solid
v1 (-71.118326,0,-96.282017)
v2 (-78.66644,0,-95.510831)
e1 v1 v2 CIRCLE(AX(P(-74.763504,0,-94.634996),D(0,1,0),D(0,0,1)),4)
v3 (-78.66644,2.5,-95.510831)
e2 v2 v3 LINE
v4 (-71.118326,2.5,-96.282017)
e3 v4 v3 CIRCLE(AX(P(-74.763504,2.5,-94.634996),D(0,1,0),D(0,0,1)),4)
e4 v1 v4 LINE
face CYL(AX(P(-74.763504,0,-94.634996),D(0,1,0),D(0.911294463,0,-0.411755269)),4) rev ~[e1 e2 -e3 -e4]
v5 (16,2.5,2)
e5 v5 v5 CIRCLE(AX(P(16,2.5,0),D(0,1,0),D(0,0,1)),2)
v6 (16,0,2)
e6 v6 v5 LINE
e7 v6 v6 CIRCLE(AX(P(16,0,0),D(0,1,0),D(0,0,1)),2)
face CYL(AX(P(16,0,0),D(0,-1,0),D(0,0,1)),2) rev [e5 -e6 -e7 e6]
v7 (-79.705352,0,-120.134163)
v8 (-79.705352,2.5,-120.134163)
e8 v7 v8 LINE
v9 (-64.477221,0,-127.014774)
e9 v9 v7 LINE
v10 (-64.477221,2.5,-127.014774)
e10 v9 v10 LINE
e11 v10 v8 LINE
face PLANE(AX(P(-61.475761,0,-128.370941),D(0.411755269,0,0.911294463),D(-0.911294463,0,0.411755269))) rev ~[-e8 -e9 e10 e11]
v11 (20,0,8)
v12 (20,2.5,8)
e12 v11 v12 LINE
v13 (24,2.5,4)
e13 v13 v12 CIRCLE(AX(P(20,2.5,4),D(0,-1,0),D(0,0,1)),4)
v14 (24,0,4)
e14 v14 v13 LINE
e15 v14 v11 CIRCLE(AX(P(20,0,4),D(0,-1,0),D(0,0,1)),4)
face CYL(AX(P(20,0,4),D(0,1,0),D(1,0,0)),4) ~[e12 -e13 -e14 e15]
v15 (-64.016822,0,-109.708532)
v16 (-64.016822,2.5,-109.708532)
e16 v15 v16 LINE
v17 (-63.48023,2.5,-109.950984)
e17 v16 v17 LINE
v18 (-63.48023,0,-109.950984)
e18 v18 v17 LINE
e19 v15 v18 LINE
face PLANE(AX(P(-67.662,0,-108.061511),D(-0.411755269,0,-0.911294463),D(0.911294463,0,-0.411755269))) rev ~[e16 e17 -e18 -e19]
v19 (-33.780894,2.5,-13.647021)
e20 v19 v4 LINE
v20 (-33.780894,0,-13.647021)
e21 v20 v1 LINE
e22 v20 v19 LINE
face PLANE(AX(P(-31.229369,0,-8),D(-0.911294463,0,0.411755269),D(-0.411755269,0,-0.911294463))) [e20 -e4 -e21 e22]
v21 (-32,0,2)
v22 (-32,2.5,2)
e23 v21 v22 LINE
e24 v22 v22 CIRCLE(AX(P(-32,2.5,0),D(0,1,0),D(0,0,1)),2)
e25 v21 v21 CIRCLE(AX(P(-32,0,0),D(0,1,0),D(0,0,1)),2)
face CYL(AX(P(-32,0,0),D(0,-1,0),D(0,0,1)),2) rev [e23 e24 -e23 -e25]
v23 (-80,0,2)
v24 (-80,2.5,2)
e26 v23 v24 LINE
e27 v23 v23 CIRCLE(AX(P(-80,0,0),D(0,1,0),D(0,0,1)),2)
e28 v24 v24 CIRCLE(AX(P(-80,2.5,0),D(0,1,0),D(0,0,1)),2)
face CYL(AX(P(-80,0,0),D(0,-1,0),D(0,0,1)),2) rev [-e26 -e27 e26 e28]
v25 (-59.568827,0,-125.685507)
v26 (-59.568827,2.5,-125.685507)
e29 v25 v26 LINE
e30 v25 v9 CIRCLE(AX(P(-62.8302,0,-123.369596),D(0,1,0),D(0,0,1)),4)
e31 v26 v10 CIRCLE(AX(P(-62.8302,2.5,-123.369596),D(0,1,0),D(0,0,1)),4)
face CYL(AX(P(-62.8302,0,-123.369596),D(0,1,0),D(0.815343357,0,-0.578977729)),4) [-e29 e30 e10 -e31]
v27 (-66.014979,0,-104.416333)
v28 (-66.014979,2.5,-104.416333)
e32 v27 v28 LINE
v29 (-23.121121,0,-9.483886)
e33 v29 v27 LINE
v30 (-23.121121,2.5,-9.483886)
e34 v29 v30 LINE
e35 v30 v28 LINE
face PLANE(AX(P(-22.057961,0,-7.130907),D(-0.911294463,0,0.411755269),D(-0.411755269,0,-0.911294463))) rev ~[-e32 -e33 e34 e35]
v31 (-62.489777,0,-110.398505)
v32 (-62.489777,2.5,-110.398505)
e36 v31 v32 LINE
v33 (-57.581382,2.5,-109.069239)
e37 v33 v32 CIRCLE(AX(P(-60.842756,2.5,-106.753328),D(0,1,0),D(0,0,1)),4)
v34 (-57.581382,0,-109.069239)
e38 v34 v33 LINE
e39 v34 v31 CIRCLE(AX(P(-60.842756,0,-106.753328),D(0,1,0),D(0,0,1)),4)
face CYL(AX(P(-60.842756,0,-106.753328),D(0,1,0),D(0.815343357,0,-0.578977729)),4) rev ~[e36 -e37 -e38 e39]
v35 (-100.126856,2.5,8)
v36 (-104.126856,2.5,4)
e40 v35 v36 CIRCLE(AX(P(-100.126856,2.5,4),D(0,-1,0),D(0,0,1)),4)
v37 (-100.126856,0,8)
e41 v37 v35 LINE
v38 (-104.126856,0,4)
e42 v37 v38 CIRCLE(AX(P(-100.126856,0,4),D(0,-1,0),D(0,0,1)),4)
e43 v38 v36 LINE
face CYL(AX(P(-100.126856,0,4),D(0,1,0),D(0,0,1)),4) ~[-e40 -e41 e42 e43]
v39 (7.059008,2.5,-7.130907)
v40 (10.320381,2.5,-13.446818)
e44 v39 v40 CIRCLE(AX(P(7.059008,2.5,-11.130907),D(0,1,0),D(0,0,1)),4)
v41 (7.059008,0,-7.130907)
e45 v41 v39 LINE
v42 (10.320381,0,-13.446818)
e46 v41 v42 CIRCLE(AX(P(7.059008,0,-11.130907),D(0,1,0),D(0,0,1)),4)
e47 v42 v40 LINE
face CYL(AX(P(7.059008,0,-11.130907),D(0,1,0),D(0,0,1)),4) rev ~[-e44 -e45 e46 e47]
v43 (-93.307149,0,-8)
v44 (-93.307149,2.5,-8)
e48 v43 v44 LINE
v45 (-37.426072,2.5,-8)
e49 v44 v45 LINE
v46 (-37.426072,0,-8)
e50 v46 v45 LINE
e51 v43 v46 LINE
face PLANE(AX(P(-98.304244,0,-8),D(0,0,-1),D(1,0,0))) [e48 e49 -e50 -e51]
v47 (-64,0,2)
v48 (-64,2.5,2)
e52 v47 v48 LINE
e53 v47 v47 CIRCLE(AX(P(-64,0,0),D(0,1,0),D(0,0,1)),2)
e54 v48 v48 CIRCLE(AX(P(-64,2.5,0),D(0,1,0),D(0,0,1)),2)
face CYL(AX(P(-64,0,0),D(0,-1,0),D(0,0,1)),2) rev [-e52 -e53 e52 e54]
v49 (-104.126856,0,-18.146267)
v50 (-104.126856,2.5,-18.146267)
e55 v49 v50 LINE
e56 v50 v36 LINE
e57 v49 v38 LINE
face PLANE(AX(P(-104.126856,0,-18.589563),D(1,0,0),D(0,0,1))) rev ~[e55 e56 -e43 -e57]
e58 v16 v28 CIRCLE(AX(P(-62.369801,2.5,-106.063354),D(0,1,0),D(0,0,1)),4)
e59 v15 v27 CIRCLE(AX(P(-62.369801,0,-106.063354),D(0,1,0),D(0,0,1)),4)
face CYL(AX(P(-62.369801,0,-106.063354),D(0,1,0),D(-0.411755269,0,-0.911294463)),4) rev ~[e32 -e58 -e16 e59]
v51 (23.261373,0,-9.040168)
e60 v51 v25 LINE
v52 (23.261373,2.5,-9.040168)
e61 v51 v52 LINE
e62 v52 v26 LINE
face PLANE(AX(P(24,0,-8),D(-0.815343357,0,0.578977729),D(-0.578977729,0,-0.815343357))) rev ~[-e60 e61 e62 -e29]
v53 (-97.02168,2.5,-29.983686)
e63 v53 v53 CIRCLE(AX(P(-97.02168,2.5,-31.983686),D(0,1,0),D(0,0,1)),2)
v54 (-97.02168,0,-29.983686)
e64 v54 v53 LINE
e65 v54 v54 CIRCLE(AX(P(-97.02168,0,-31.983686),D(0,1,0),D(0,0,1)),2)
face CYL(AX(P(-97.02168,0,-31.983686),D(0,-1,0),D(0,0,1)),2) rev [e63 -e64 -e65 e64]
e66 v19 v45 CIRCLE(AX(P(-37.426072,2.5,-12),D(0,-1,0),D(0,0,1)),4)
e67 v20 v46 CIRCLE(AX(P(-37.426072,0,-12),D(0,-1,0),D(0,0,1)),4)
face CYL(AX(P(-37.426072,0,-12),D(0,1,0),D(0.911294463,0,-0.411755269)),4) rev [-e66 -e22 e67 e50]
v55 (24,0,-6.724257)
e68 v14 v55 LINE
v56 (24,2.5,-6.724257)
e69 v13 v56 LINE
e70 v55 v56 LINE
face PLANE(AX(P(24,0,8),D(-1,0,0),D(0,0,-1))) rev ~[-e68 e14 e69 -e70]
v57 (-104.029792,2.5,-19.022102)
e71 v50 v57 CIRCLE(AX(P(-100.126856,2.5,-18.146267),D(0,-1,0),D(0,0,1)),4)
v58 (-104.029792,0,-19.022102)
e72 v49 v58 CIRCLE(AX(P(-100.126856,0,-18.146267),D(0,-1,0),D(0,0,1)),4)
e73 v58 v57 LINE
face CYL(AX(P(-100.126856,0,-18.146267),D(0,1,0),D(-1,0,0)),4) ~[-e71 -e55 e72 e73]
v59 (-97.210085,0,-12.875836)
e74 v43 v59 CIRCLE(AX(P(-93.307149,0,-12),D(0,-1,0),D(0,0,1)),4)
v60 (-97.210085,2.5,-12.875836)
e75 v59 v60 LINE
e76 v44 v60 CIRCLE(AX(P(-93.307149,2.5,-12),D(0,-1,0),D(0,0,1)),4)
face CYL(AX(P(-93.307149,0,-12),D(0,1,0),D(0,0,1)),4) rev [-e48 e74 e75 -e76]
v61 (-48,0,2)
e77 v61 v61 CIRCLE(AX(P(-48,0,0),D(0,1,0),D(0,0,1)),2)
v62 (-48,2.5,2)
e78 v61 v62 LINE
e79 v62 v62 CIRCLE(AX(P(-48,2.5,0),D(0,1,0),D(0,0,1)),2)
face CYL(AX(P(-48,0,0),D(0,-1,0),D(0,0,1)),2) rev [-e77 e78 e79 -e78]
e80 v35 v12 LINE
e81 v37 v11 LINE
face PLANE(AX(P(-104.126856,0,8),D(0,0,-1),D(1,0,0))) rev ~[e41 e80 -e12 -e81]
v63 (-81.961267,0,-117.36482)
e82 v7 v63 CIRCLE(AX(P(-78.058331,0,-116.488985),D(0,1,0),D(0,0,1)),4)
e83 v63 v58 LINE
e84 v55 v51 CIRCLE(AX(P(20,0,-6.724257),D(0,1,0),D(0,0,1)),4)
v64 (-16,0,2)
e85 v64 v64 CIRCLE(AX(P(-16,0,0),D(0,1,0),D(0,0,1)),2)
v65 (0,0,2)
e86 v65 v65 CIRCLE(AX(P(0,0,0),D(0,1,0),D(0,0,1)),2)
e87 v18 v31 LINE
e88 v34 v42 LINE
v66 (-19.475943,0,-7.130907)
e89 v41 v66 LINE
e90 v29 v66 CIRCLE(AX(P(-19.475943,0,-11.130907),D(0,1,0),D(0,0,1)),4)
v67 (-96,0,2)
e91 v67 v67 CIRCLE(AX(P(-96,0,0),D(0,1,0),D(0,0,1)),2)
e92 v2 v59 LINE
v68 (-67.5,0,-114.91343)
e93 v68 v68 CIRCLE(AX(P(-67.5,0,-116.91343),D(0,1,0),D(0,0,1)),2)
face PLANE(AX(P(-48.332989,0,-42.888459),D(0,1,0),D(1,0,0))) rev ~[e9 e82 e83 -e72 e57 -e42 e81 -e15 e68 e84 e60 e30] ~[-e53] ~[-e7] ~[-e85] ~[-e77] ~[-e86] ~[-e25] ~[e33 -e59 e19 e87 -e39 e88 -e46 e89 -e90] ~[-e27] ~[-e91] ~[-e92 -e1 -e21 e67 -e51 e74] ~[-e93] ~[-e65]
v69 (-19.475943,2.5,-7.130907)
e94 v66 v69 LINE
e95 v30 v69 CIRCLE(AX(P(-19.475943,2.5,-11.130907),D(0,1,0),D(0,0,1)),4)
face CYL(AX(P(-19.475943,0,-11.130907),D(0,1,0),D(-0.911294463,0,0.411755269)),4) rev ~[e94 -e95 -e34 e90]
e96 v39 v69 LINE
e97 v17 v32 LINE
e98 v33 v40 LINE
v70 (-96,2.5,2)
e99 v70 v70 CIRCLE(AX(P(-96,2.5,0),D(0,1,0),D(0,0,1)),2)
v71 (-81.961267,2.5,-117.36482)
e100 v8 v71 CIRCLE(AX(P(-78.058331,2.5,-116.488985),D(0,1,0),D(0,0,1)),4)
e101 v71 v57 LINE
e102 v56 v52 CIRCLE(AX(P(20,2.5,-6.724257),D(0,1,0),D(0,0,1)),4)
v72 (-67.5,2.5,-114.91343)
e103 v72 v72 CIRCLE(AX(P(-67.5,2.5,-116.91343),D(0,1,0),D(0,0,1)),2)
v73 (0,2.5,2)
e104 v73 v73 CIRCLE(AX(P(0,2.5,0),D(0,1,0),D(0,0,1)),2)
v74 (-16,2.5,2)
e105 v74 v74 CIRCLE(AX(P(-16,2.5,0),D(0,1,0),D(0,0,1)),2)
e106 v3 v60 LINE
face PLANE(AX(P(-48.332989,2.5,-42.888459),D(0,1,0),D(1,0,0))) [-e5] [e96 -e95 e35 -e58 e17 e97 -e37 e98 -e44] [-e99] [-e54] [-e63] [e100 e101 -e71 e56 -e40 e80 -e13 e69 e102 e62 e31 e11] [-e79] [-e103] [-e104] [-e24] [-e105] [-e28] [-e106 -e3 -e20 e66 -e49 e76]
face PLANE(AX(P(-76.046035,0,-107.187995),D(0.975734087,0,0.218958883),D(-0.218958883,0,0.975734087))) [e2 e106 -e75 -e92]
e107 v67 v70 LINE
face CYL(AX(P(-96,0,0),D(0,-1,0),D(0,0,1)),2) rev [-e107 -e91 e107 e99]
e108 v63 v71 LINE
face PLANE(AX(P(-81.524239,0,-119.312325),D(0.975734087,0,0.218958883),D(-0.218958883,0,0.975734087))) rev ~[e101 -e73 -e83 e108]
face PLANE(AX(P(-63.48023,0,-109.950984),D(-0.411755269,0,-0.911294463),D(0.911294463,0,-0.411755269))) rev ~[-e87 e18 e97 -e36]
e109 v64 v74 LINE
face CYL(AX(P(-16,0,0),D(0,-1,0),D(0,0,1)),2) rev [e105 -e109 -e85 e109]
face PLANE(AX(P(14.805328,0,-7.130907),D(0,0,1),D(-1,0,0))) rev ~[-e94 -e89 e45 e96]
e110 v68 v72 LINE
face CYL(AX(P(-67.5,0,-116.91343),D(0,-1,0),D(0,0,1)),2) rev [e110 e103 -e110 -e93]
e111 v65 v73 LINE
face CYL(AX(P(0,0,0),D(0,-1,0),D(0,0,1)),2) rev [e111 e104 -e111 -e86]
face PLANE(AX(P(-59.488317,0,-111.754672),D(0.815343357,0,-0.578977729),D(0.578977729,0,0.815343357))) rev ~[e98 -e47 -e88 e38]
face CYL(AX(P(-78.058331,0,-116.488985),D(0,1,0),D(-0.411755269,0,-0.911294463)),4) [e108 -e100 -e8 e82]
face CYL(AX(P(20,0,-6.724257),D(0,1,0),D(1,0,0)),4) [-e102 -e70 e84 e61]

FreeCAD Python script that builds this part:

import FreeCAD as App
import Part
import Sketcher


def edges_at(feature, points):
    """Names of the edges that pass closest to the given points."""
    edges = feature.Shape.Edges
    near = lambda p: min(range(len(edges)), key=lambda i: edges[i].distToShape(Part.Vertex(*p))[0])
    return sorted({f"Edge{near(p) + 1}" for p in points})


def add_polygon(sketch, points):
    """Adds a closed chain of lines whose ends are joined by coincident constraints."""
    first, n = sketch.GeometryCount, len(points)
    for a, b in zip(points, points[1:] + points[:1]):
        sketch.addGeometry(Part.LineSegment(App.Vector(*a, 0), App.Vector(*b, 0)), False)
    for i in range(n):
        sketch.addConstraint(Sketcher.Constraint("Coincident", first + i, 2, first + (i + 1) % n, 1))

doc = App.newDocument("Part")
body = doc.addObject("PartDesign::Body", "Body")

sketch1 = doc.addObject("Sketcher::SketchObject", "Sketch")
body.addObject(sketch1)
sketch1.AttachmentSupport = (doc.XZ_Plane, [""])
sketch1.MapMode = "FlatFace"
add_polygon(sketch1, [(24, 8), (24, -8), (-61.475761, -128.370941), (-81.524239, -119.312325), (-104.126856, -18.589563), (-104.126856, 8)])
sketch1.addGeometry(Part.Circle(App.Vector(-96, 0, 0), App.Vector(0, 0, 1), 2), False)
sketch1.addGeometry(Part.Circle(App.Vector(-80, 0, 0), App.Vector(0, 0, 1), 2), False)
sketch1.addGeometry(Part.Circle(App.Vector(-64, 0, 0), App.Vector(0, 0, 1), 2), False)
sketch1.addGeometry(Part.Circle(App.Vector(-48, 0, 0), App.Vector(0, 0, 1), 2), False)
sketch1.addGeometry(Part.Circle(App.Vector(-97.02168, -31.983686, 0), App.Vector(0, 0, 1), 2), False)
add_polygon(sketch1, [(-76.046035, -107.187995), (-31.229369, -8), (-98.304244, -8)])
sketch1.addGeometry(Part.Circle(App.Vector(-32, 0, 0), App.Vector(0, 0, 1), 2), False)
sketch1.addGeometry(Part.Circle(App.Vector(-16, 0, 0), App.Vector(0, 0, 1), 2), False)
sketch1.addGeometry(Part.Circle(App.Vector(0, 0, 0), App.Vector(0, 0, 1), 2), False)
sketch1.addGeometry(Part.Circle(App.Vector(16, 0, 0), App.Vector(0, 0, 1), 2), False)
sketch1.addGeometry(Part.Circle(App.Vector(-67.5, -116.91343, 0), App.Vector(0, 0, 1), 2), False)
add_polygon(sketch1, [(-67.662, -108.061511), (-63.48023, -109.950984), (-59.488317, -111.754672), (14.805328, -7.130907), (-22.057961, -7.130907)])
sketch1.addConstraint([
    Sketcher.Constraint("Vertical", 0),
    Sketcher.Constraint("Vertical", 4),
    Sketcher.Constraint("Horizontal", 5),
    Sketcher.Constraint("Horizontal", 12),
    Sketcher.Constraint("Horizontal", 22),
    Sketcher.Constraint("Coincident", 16, 3, -1, 1),
    Sketcher.Constraint("Equal", 6, 7),
    Sketcher.Constraint("Equal", 7, 8),
    Sketcher.Constraint("Equal", 8, 9),
    Sketcher.Constraint("Equal", 9, 10),
    Sketcher.Constraint("Equal", 10, 14),
    Sketcher.Constraint("Equal", 14, 15),
    Sketcher.Constraint("Equal", 15, 16),
    Sketcher.Constraint("Equal", 16, 17),
    Sketcher.Constraint("Equal", 17, 18),
    Sketcher.Constraint("Symmetric", 15, 3, 17, 3, -1, 1),
    Sketcher.Constraint("PointOnObject", 6, 3, -1),
    Sketcher.Constraint("PointOnObject", 7, 3, -1),
    Sketcher.Constraint("PointOnObject", 8, 3, -1),
    Sketcher.Constraint("PointOnObject", 9, 3, -1),
    Sketcher.Constraint("PointOnObject", 14, 3, -1),
    Sketcher.Constraint("PointOnObject", 15, 3, -1),
    Sketcher.Constraint("Perpendicular", 2, 11),
    Sketcher.Constraint("Parallel", 3, 13),
    Sketcher.Constraint("Perpendicular", 11, 19),
    Sketcher.Constraint("Parallel", 19, 20),
    Sketcher.Constraint("Parallel", 1, 21),
    Sketcher.Constraint("Perpendicular", 20, 23),
    Sketcher.Constraint("Horizontal", 0, 2, 11, 2),
    Sketcher.Constraint("Diameter", 6, 4.0),
    Sketcher.Constraint("DistanceY", 0, 2, 0, 1, 16.0),
    Sketcher.Constraint("Distance", 2, 22.0),
    Sketcher.Constraint("DistanceX", 6, 3, -1, 1, 96.0),
    Sketcher.Constraint("DistanceX", 7, 3, -1, 1, 80.0),
    Sketcher.Constraint("DistanceX", 8, 3, -1, 1, 64.0),
    Sketcher.Constraint("DistanceX", 9, 3, -1, 1, 48.0),
    Sketcher.Constraint("DistanceX", 14, 3, -1, 1, 32.0),
    Sketcher.Constraint("DistanceX", 15, 3, -1, 1, 16.0),
    Sketcher.Constraint("DistanceX", -1, 1, 0, 2, 24.0),
    Sketcher.Constraint("DistanceY", 0, 2, -1, 1, 8.0),
    Sketcher.Constraint("DistanceX", 18, 3, -1, 1, 67.5),
    Sketcher.Constraint("DistanceX", 23, 2, -1, 1, 67.662),
    Sketcher.Constraint("DistanceX", 22, 2, 22, 1, 36.863289),
    Sketcher.Constraint("Distance", 1, 147.632209),
    Sketcher.Constraint("Distance", 11, 108.842969),
    Sketcher.Constraint("Distance", 13, 101.65474),
    Sketcher.Constraint("DistanceX", 5, 1, 5, 2, 128.126856),
    Sketcher.Constraint("DistanceX", 12, 2, 12, 1, 67.074874),
    Sketcher.Constraint("DistanceY", 4, 1, 4, 2, 26.589563),
    Sketcher.Constraint("DistanceX", 10, 3, -1, 1, 97.02168),
    Sketcher.Constraint("DistanceY", 18, 3, -1, 1, 116.91343),
    Sketcher.Constraint("DistanceX", 11, 2, -1, 1, 31.229369),
    Sketcher.Constraint("DistanceX", 19, 2, -1, 1, 63.48023),
    Sketcher.Constraint("DistanceX", -1, 1, 21, 2, 14.805328),
    Sketcher.Constraint("DistanceY", 23, 2, -1, 1, 108.061511),
    Sketcher.Constraint("DistanceY", 2, 2, 10, 3, 87.328639),
])
pad1 = doc.addObject("PartDesign::Pad", "Pad")
body.addObject(pad1)
pad1.Profile = sketch1
pad1.Length = 2.5
pad1.Reversed = True
doc.recompute()

fillet = doc.addObject("PartDesign::Fillet", "Fillet")
body.addObject(fillet)
fillet.Base = (pad1, edges_at(pad1, [
    (24, 1.25, -8),
    (24, 1.25, 8),
    (-104.127, 1.25, 8),
    (-104.127, 1.25, -18.59),
    (-81.524, 1.25, -119.312),
    (-61.476, 1.25, -128.371),
    (-67.662, 1.25, -108.062),
    (-22.058, 1.25, -7.131),
    (14.805, 1.25, -7.131),
    (-59.488, 1.25, -111.755),
    (-98.304, 1.25, -8),
    (-31.229, 1.25, -8),
    (-76.046, 1.25, -107.188),
]))
fillet.Radius = 4

doc.recompute()
